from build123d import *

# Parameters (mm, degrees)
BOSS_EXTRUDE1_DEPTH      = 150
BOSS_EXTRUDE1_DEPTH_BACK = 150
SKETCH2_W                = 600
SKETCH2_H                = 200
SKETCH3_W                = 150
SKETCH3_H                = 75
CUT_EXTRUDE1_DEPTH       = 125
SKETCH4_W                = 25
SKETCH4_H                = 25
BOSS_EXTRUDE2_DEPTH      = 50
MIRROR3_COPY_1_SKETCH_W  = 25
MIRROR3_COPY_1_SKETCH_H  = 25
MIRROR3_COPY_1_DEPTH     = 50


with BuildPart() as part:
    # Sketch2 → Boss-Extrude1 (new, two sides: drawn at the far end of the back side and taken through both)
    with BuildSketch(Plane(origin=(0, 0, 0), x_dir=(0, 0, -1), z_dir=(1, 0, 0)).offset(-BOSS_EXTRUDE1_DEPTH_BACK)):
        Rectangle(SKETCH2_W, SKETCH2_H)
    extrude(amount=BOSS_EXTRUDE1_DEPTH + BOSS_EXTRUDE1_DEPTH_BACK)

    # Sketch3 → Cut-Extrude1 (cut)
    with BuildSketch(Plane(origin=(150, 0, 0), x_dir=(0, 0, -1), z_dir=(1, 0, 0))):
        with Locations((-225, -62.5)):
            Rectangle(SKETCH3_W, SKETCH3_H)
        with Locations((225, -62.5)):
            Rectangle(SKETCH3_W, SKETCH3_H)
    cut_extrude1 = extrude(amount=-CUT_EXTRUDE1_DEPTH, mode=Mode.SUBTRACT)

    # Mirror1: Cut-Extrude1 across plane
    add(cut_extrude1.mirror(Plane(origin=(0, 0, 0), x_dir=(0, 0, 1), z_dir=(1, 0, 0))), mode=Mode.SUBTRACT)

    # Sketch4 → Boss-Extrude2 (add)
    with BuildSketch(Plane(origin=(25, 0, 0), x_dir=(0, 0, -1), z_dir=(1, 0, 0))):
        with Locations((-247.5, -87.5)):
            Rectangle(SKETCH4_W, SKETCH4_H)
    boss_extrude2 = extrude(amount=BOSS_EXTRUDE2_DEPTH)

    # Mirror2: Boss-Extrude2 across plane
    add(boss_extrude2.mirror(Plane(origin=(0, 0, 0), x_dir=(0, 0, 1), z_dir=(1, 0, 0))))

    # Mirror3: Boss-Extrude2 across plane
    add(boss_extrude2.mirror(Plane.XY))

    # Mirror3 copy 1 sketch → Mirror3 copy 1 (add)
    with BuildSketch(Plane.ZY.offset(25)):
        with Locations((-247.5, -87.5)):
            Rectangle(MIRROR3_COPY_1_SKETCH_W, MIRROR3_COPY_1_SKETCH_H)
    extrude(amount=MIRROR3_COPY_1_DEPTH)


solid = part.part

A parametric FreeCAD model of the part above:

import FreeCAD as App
import Part
import Sketcher

V = App.Vector


def add_polygon(sketch, points):
    """Adds a closed chain of lines whose ends are joined by coincident constraints."""
    first, n = sketch.GeometryCount, len(points)
    for a, b in zip(points, points[1:] + points[:1]):
        sketch.addGeometry(Part.LineSegment(App.Vector(*a, 0), App.Vector(*b, 0)), False)
    for i in range(n):
        sketch.addConstraint(Sketcher.Constraint("Coincident", first + i, 2, first + (i + 1) % n, 1))

doc = App.newDocument("Part")
body = doc.addObject("PartDesign::Body", "Body")

# Sketch on YZ plane
sketch1 = body.newObject("Sketcher::SketchObject", "Sketch")
sketch1.AttachmentSupport = (doc.getObject("YZ_Plane"), [""])
sketch1.MapMode = "FlatFace"
add_polygon(sketch1, [(100, 300), (-100, 300), (-100, -300), (100, -300)])  # lines 0-3
sketch1.addConstraint([
    Sketcher.Constraint("Horizontal", 0),
    Sketcher.Constraint("Vertical", 1),
    Sketcher.Constraint("Horizontal", 2),
    Sketcher.Constraint("Vertical", 3),
    Sketcher.Constraint("Symmetric", 0, 2, 2, 2, -1, 1),
    Sketcher.Constraint("DistanceX", 0, 2, 0, 1, 200.0),
    Sketcher.Constraint("DistanceY", 1, 2, 1, 1, 600.0),
])
pad1 = body.newObject("PartDesign::Pad", "Pad")
pad1.Profile = sketch1
pad1.Type = "TwoLengths"
pad1.Length = 150
pad1.Length2 = 150

# Sketch on YZ plane
sketch2 = body.newObject("Sketcher::SketchObject", "Sketch001")
sketch2.AttachmentSupport = (doc.getObject("YZ_Plane"), [""])
sketch2.MapMode = "FlatFace"
sketch2.AttachmentOffset = App.Placement(V(0, 0, 150), App.Rotation())
add_polygon(sketch2, [(-25, 300), (-100, 300), (-100, 150), (-25, 150)])  # lines 0-3
add_polygon(sketch2, [(-25, -150), (-100, -150), (-100, -300), (-25, -300)])  # lines 4-7
sketch2.addConstraint([
    Sketcher.Constraint("Horizontal", 0),
    Sketcher.Constraint("Vertical", 1),
    Sketcher.Constraint("Horizontal", 2),
    Sketcher.Constraint("Vertical", 3),
    Sketcher.Constraint("Horizontal", 4),
    Sketcher.Constraint("Vertical", 5),
    Sketcher.Constraint("Horizontal", 6),
    Sketcher.Constraint("Vertical", 7),
    Sketcher.Constraint("Symmetric", 1, 2, 4, 2, -1),
    Sketcher.Constraint("Symmetric", 3, 2, 6, 2, -1),
    Sketcher.Constraint("DistanceX", 0, 2, 0, 1, 75.0),
    Sketcher.Constraint("DistanceY", 1, 2, 1, 1, 150.0),
    Sketcher.Constraint("DistanceX", 0, 2, -1, 1, 100.0),
    Sketcher.Constraint("DistanceY", -1, 1, 0, 2, 300.0),
])
pocket1 = body.newObject("PartDesign::Pocket", "Pocket")
pocket1.Profile = sketch2
pocket1.Length = 125
doc.recompute()

mirrored = body.newObject("PartDesign::Mirrored", "Mirrored")
mirrored.Originals = [pocket1]
mirrored.MirrorPlane = (doc.getObject("YZ_Plane"), [""])
body.Tip = mirrored

# Sketch on YZ plane
sketch3 = body.newObject("Sketcher::SketchObject", "Sketch002")
sketch3.AttachmentSupport = (doc.getObject("YZ_Plane"), [""])
sketch3.MapMode = "FlatFace"
sketch3.AttachmentOffset = App.Placement(V(0, 0, 25), App.Rotation())
add_polygon(sketch3, [(-75, 260), (-100, 260), (-100, 235), (-75, 235)])  # lines 0-3
sketch3.addConstraint([
    Sketcher.Constraint("Horizontal", 0),
    Sketcher.Constraint("Vertical", 1),
    Sketcher.Constraint("Horizontal", 2),
    Sketcher.Constraint("Vertical", 3),
    Sketcher.Constraint("Equal", 2, 1),
    Sketcher.Constraint("DistanceX", 0, 2, 0, 1, 25.0),
    Sketcher.Constraint("DistanceX", 0, 2, -1, 1, 100.0),
    Sketcher.Constraint("DistanceY", -1, 1, 0, 2, 260.0),
])
pad2 = body.newObject("PartDesign::Pad", "Pad001")
pad2.Profile = sketch3
pad2.Length = 50
doc.recompute()

mirrored2 = body.newObject("PartDesign::Mirrored", "Mirrored001")
mirrored2.Originals = [pad2]
mirrored2.MirrorPlane = (doc.getObject("YZ_Plane"), [""])
body.Tip = mirrored2
doc.recompute()

mirrored3 = body.newObject("PartDesign::Mirrored", "Mirrored002")
mirrored3.Originals = [pad2]
mirrored3.MirrorPlane = (doc.getObject("XY_Plane"), [""])
body.Tip = mirrored3

# Sketch on YZ plane
sketch4 = body.newObject("Sketcher::SketchObject", "Sketch003")
sketch4.AttachmentSupport = (doc.getObject("YZ_Plane"), [""])
sketch4.MapMode = "FlatFace"
sketch4.AttachmentOffset = App.Placement(V(0, 0, -25), App.Rotation())
add_polygon(sketch4, [(-75, -260), (-100, -260), (-100, -235), (-75, -235)])  # lines 0-3
sketch4.addConstraint([
    Sketcher.Constraint("Horizontal", 0),
    Sketcher.Constraint("Vertical", 1),
    Sketcher.Constraint("Horizontal", 2),
    Sketcher.Constraint("Vertical", 3),
    Sketcher.Constraint("Equal", 2, 1),
    Sketcher.Constraint("DistanceX", 0, 2, 0, 1, 25.0),
    Sketcher.Constraint("DistanceX", 0, 2, -1, 1, 100.0),
    Sketcher.Constraint("DistanceY", 0, 2, -1, 1, 260.0),
])
pad3 = body.newObject("PartDesign::Pad", "Pad002")
pad3.Profile = sketch4
pad3.Length = 50
pad3.Reversed = True

doc.recompute()
